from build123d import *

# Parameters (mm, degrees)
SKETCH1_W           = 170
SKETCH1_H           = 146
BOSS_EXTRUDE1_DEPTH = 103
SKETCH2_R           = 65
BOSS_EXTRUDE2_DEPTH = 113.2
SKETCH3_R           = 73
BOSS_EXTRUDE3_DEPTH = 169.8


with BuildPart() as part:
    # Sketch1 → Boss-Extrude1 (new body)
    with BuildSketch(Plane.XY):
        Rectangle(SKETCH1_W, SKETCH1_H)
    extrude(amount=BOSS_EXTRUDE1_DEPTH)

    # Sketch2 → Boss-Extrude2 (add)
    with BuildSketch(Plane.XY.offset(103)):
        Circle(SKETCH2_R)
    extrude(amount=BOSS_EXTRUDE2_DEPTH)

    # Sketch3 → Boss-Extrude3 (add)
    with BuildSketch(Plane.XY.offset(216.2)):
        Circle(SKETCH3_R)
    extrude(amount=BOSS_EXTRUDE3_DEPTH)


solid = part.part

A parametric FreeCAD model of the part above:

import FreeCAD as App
import Part
import Sketcher
from FreeCAD import Vector

doc = App.newDocument("Part")
params = doc.addObject("Spreadsheet::Sheet", "Params")
for row, (alias, value) in enumerate([
    ("sketch1_width", "170 mm"),
    ("sketch1_height", "146 mm"),
    ("pad1_length", "103 mm"),
    ("sketch2_diameter", "130 mm"),
    ("pad2_length", "113.2 mm"),
    ("sketch3_diameter", "146 mm"),
    ("pad3_length", "169.8 mm"),
], start=1):
    params.set(f"A{row}", alias)
    params.set(f"B{row}", "=" + value)
    params.setAlias(f"B{row}", alias)

body = doc.addObject("PartDesign::Body", "Body")

# Sketch on XY plane
sketch1 = doc.addObject("Sketcher::SketchObject", "Sketch")
body.addObject(sketch1)
sketch1.AttachmentSupport = (doc.XY_Plane, [""])
sketch1.MapMode = "FlatFace"
sketch1.addGeometry([
    Part.LineSegment(Vector(-85, 73, 0), Vector(-85, -73, 0)),
    Part.LineSegment(Vector(-85, -73, 0), Vector(85, -73, 0)),
    Part.LineSegment(Vector(85, -73, 0), Vector(85, 73, 0)),
    Part.LineSegment(Vector(85, 73, 0), Vector(-85, 73, 0)),
], False)
sketch1.addConstraint([
    Sketcher.Constraint("Coincident", 0, 2, 1, 1),
    Sketcher.Constraint("Coincident", 1, 2, 2, 1),
    Sketcher.Constraint("Coincident", 2, 2, 3, 1),
    Sketcher.Constraint("Coincident", 3, 2, 0, 1),
    Sketcher.Constraint("Vertical", 0),
    Sketcher.Constraint("Horizontal", 1),
    Sketcher.Constraint("Vertical", 2),
    Sketcher.Constraint("Horizontal", 3),
    Sketcher.Constraint("Symmetric", 0, 2, 2, 2, -1, 1),
    Sketcher.Constraint("DistanceX", 1, 1, 1, 2, 170.0),
    Sketcher.Constraint("DistanceY", 0, 2, 0, 1, 146.0),
])
sketch1.setExpression("Constraints[9]", "Params.sketch1_width")
sketch1.setExpression("Constraints[10]", "Params.sketch1_height")
pad1 = doc.addObject("PartDesign::Pad", "Pad")
body.addObject(pad1)
pad1.Profile = sketch1
pad1.setExpression("Length", "Params.pad1_length")

# Sketch on XY plane
sketch2 = doc.addObject("Sketcher::SketchObject", "Sketch001")
body.addObject(sketch2)
sketch2.AttachmentSupport = (doc.XY_Plane, [""])
sketch2.MapMode = "FlatFace"
sketch2.AttachmentOffset = App.Placement(Vector(0, 0, 103), App.Rotation())
sketch2.addGeometry(Part.Circle(Vector(0, 0, 0), Vector(0, 0, 1), 65), False)
sketch2.addConstraint([
    Sketcher.Constraint("Coincident", 0, 3, -1, 1),
    Sketcher.Constraint("Diameter", 0, 130.0),
])
sketch2.setExpression("Constraints[1]", "Params.sketch2_diameter")
pad2 = doc.addObject("PartDesign::Pad", "Pad001")
body.addObject(pad2)
pad2.Profile = sketch2
pad2.setExpression("Length", "Params.pad2_length")

# Sketch on XY plane
sketch3 = doc.addObject("Sketcher::SketchObject", "Sketch002")
body.addObject(sketch3)
sketch3.AttachmentSupport = (doc.XY_Plane, [""])
sketch3.MapMode = "FlatFace"
sketch3.AttachmentOffset = App.Placement(Vector(0, 0, 216.2), App.Rotation())
sketch3.addGeometry(Part.Circle(Vector(0, 0, 0), Vector(0, 0, 1), 73), False)
sketch3.addConstraint([
    Sketcher.Constraint("Coincident", 0, 3, -1, 1),
    Sketcher.Constraint("Diameter", 0, 146.0),
])
sketch3.setExpression("Constraints[1]", "Params.sketch3_diameter")
pad3 = doc.addObject("PartDesign::Pad", "Pad002")
body.addObject(pad3)
pad3.Profile = sketch3
pad3.setExpression("Length", "Params.pad3_length")

doc.recompute()
